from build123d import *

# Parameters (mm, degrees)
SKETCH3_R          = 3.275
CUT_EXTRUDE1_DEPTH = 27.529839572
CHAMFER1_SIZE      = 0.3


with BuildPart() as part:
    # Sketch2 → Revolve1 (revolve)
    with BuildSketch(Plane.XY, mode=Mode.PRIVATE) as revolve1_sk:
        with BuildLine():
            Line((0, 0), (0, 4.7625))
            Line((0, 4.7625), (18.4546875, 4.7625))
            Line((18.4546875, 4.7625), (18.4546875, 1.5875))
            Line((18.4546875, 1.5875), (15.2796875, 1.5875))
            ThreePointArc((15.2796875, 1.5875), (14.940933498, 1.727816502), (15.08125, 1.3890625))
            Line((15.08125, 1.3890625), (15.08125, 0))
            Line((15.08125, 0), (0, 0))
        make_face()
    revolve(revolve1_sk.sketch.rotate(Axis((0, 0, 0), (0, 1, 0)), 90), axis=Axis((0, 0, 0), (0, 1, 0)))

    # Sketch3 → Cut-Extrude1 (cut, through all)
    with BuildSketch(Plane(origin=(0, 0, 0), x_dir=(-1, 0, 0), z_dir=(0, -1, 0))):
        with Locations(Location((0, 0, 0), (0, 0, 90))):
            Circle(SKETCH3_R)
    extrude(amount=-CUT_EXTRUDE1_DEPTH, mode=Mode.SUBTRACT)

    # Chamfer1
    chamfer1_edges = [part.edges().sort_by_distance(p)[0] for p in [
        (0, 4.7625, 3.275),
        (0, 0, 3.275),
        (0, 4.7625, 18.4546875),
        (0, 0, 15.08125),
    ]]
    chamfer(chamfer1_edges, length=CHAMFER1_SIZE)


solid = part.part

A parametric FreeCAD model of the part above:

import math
import FreeCAD as App
import Part
import Sketcher
Q = App.Units.Quantity


def edges_at(feature, points):
    """Names of the edges that pass closest to the given points."""
    edges = feature.Shape.Edges
    near = lambda p: min(range(len(edges)), key=lambda i: edges[i].distToShape(Part.Vertex(*p))[0])
    return sorted({f"Edge{near(p) + 1}" for p in points})

doc = App.newDocument("Part")
params = doc.addObject("Spreadsheet::Sheet", "Params")
for row, (alias, value) in enumerate([
    ("sketch1_width", "0.59375 in"),
    ("sketch1_width2", "0.125 in"),
    ("sketch1_height", "0.1875 in"),
    ("revolution_angle", "360 deg"),
    ("chamfer_size", "0.3 mm"),
], start=1):
    params.set(f"A{row}", alias)
    params.set(f"B{row}", "=" + value)
    params.setAlias(f"B{row}", alias)

body = doc.addObject("PartDesign::Body", "Body")

sketch1 = doc.addObject("Sketcher::SketchObject", "Sketch")
body.addObject(sketch1)
sketch1.AttachmentSupport = (doc.XY_Plane, [""])
sketch1.MapMode = "FlatFace"
sketch1.addGeometry(Part.LineSegment(App.Vector(0, 4.76, 0), App.Vector(0, 0, 0)), False)
sketch1.addGeometry(Part.LineSegment(App.Vector(0, 0, 0), App.Vector(15.08, 0, 0)), False)
sketch1.addGeometry(Part.LineSegment(App.Vector(15.08, 0, 0), App.Vector(15.08, 1.39, 0)), False)
sketch1.addGeometry(Part.ArcOfCircle(Part.Circle(App.Vector(15.08, 1.59, 0), App.Vector(0, 0, 1), 0.2), math.radians(0), math.radians(270)), False)
sketch1.addGeometry(Part.LineSegment(App.Vector(15.28, 1.59, 0), App.Vector(18.45, 1.59, 0)), False)
sketch1.addGeometry(Part.LineSegment(App.Vector(18.45, 1.59, 0), App.Vector(18.45, 4.76, 0)), False)
sketch1.addGeometry(Part.LineSegment(App.Vector(18.45, 4.76, 0), App.Vector(0, 4.76, 0)), False)
sketch1.addConstraint(Sketcher.Constraint("Coincident", 0, 2, 1, 1))
sketch1.addConstraint(Sketcher.Constraint("Coincident", 1, 2, 2, 1))
sketch1.addConstraint(Sketcher.Constraint("Coincident", 2, 2, 3, 2))
sketch1.addConstraint(Sketcher.Constraint("Coincident", 3, 1, 4, 1))
sketch1.addConstraint(Sketcher.Constraint("Coincident", 4, 2, 5, 1))
sketch1.addConstraint(Sketcher.Constraint("Coincident", 5, 2, 6, 1))
sketch1.addConstraint(Sketcher.Constraint("Coincident", 6, 2, 0, 1))
sketch1.addConstraint(Sketcher.Constraint("Vertical", 0))
sketch1.addConstraint(Sketcher.Constraint("Horizontal", 1))
sketch1.addConstraint(Sketcher.Constraint("Vertical", 2))
sketch1.addConstraint(Sketcher.Constraint("Horizontal", 4))
sketch1.addConstraint(Sketcher.Constraint("Vertical", 5))
sketch1.addConstraint(Sketcher.Constraint("Horizontal", 6))
sketch1.addConstraint(Sketcher.Constraint("Coincident", 0, 2, -1, 1))
sketch1.addConstraint(Sketcher.Constraint("Vertical", 3, 3, 1, 2))
sketch1.addConstraint(Sketcher.Constraint("Equal", 4, 5))
sketch1.addConstraint(Sketcher.Constraint("DistanceX", 1, 1, 1, 2, Q("0.59375 in")))
sketch1.addConstraint(Sketcher.Constraint("DistanceX", 4, 1, 4, 2, Q("0.125 in")))
sketch1.addConstraint(Sketcher.Constraint("DistanceY", 0, 2, 0, 1, Q("0.1875 in")))
sketch1.addConstraint(Sketcher.Constraint("DistanceY", -1, 1, 3, 3, Q("0.0625 in")))
sketch1.addConstraint(Sketcher.Constraint("Radius", 3, Q("0.198437 mm")))
sketch1.setExpression("Constraints[16]", "Params.sketch1_width")
sketch1.setExpression("Constraints[17]", "Params.sketch1_width2")
sketch1.setExpression("Constraints[18]", "Params.sketch1_height")
revolution = doc.addObject("PartDesign::Revolution", "Revolution")
body.addObject(revolution)
revolution.Profile = sketch1
revolution.ReferenceAxis = (sketch1, ["V_Axis"])
revolution.setExpression("Angle", "Params.revolution_angle")

sketch2 = doc.addObject("Sketcher::SketchObject", "Sketch001")
body.addObject(sketch2)
sketch2.AttachmentSupport = (doc.XZ_Plane, [""])
sketch2.MapMode = "FlatFace"
sketch2.addGeometry(Part.Circle(App.Vector(0, 0, 0), App.Vector(0, 0, 1), 3.3), False)
sketch2.addConstraint(Sketcher.Constraint("Coincident", 0, 3, -1, 1))
sketch2.addConstraint(Sketcher.Constraint("Diameter", 0, Q("6.55 mm")))
pocket1 = doc.addObject("PartDesign::Pocket", "Pocket")
body.addObject(pocket1)
pocket1.Profile = sketch2
pocket1.Type = "ThroughAll"
doc.recompute()

chamfer = doc.addObject("PartDesign::Chamfer", "Chamfer")
body.addObject(chamfer)
chamfer.Base = (pocket1, edges_at(pocket1, [
    (0, 4.763, 3.275),
    (0, 0, 3.275),
    (0, 4.763, 18.455),
    (0, 0, 15.081),
]))
chamfer.setExpression("Size", "Params.chamfer_size")

doc.recompute()
